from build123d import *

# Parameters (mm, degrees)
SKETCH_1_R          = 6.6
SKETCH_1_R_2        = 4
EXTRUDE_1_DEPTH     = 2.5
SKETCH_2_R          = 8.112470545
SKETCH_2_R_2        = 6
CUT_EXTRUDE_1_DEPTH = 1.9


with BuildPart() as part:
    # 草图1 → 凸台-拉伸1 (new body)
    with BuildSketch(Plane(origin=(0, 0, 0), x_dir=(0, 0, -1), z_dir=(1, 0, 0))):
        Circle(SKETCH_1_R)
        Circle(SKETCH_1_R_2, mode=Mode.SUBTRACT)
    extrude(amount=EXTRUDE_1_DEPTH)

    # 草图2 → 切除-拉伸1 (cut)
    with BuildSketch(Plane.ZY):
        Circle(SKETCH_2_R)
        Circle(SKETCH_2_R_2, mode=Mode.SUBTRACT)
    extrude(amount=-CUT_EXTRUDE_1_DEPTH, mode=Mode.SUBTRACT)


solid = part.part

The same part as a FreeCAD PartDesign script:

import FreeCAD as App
import Part
import Sketcher

V = App.Vector
Q = App.Units.Quantity

doc = App.newDocument("Part")
params = doc.addObject("Spreadsheet::Sheet", "Params")
for row, (alias, value) in enumerate([
    ("sketch1_diameter", "8 mm"),
    ("sketch1_diameter2", "13.2 mm"),
    ("pad1_length", "2.5 mm"),
    ("sketch2_diameter", "12 mm"),
    ("pocket1_length", "1.9 mm"),
], start=1):
    params.set(f"A{row}", alias)
    params.set(f"B{row}", "=" + value)
    params.setAlias(f"B{row}", alias)

body = doc.addObject("PartDesign::Body", "Body")

# Sketch on YZ plane
sketch1 = doc.addObject("Sketcher::SketchObject", "Sketch")
body.addObject(sketch1)
sketch1.AttachmentSupport = (doc.YZ_Plane, [""])
sketch1.MapMode = "FlatFace"
sketch1.addGeometry([
    Part.Circle(V(0, 0, 0), V(0, 0, 1), 6.6),
    Part.Circle(V(0, 0, 0), V(0, 0, 1), 4),
], False)
sketch1.addConstraint([
    Sketcher.Constraint("Coincident", 0, 3, -1, 1),
    Sketcher.Constraint("Coincident", 1, 3, -1, 1),
    Sketcher.Constraint("Diameter", 1, Q("8 mm")),
    Sketcher.Constraint("Diameter", 0, Q("13.2 mm")),
])
sketch1.setExpression("Constraints[2]", "Params.sketch1_diameter")
sketch1.setExpression("Constraints[3]", "Params.sketch1_diameter2")
pad1 = doc.addObject("PartDesign::Pad", "Pad")
body.addObject(pad1)
pad1.Profile = sketch1
pad1.setExpression("Length", "Params.pad1_length")

# Sketch on YZ plane
sketch2 = doc.addObject("Sketcher::SketchObject", "Sketch001")
body.addObject(sketch2)
sketch2.AttachmentSupport = (doc.YZ_Plane, [""])
sketch2.MapMode = "FlatFace"
sketch2.addGeometry([
    Part.Circle(V(0, 0, 0), V(0, 0, 1), 8.112471),
    Part.Circle(V(0, 0, 0), V(0, 0, 1), 6),
], False)
sketch2.addConstraint([
    Sketcher.Constraint("Coincident", 0, 3, -1, 1),
    Sketcher.Constraint("Coincident", 1, 3, -1, 1),
    Sketcher.Constraint("Diameter", 1, Q("12 mm")),
    Sketcher.Constraint("Diameter", 0, Q("16.224941 mm")),
])
sketch2.setExpression("Constraints[2]", "Params.sketch2_diameter")
pocket1 = doc.addObject("PartDesign::Pocket", "Pocket")
body.addObject(pocket1)
pocket1.Profile = sketch2
pocket1.setExpression("Length", "Params.pocket1_length")
pocket1.Reversed = True

doc.recompute()
